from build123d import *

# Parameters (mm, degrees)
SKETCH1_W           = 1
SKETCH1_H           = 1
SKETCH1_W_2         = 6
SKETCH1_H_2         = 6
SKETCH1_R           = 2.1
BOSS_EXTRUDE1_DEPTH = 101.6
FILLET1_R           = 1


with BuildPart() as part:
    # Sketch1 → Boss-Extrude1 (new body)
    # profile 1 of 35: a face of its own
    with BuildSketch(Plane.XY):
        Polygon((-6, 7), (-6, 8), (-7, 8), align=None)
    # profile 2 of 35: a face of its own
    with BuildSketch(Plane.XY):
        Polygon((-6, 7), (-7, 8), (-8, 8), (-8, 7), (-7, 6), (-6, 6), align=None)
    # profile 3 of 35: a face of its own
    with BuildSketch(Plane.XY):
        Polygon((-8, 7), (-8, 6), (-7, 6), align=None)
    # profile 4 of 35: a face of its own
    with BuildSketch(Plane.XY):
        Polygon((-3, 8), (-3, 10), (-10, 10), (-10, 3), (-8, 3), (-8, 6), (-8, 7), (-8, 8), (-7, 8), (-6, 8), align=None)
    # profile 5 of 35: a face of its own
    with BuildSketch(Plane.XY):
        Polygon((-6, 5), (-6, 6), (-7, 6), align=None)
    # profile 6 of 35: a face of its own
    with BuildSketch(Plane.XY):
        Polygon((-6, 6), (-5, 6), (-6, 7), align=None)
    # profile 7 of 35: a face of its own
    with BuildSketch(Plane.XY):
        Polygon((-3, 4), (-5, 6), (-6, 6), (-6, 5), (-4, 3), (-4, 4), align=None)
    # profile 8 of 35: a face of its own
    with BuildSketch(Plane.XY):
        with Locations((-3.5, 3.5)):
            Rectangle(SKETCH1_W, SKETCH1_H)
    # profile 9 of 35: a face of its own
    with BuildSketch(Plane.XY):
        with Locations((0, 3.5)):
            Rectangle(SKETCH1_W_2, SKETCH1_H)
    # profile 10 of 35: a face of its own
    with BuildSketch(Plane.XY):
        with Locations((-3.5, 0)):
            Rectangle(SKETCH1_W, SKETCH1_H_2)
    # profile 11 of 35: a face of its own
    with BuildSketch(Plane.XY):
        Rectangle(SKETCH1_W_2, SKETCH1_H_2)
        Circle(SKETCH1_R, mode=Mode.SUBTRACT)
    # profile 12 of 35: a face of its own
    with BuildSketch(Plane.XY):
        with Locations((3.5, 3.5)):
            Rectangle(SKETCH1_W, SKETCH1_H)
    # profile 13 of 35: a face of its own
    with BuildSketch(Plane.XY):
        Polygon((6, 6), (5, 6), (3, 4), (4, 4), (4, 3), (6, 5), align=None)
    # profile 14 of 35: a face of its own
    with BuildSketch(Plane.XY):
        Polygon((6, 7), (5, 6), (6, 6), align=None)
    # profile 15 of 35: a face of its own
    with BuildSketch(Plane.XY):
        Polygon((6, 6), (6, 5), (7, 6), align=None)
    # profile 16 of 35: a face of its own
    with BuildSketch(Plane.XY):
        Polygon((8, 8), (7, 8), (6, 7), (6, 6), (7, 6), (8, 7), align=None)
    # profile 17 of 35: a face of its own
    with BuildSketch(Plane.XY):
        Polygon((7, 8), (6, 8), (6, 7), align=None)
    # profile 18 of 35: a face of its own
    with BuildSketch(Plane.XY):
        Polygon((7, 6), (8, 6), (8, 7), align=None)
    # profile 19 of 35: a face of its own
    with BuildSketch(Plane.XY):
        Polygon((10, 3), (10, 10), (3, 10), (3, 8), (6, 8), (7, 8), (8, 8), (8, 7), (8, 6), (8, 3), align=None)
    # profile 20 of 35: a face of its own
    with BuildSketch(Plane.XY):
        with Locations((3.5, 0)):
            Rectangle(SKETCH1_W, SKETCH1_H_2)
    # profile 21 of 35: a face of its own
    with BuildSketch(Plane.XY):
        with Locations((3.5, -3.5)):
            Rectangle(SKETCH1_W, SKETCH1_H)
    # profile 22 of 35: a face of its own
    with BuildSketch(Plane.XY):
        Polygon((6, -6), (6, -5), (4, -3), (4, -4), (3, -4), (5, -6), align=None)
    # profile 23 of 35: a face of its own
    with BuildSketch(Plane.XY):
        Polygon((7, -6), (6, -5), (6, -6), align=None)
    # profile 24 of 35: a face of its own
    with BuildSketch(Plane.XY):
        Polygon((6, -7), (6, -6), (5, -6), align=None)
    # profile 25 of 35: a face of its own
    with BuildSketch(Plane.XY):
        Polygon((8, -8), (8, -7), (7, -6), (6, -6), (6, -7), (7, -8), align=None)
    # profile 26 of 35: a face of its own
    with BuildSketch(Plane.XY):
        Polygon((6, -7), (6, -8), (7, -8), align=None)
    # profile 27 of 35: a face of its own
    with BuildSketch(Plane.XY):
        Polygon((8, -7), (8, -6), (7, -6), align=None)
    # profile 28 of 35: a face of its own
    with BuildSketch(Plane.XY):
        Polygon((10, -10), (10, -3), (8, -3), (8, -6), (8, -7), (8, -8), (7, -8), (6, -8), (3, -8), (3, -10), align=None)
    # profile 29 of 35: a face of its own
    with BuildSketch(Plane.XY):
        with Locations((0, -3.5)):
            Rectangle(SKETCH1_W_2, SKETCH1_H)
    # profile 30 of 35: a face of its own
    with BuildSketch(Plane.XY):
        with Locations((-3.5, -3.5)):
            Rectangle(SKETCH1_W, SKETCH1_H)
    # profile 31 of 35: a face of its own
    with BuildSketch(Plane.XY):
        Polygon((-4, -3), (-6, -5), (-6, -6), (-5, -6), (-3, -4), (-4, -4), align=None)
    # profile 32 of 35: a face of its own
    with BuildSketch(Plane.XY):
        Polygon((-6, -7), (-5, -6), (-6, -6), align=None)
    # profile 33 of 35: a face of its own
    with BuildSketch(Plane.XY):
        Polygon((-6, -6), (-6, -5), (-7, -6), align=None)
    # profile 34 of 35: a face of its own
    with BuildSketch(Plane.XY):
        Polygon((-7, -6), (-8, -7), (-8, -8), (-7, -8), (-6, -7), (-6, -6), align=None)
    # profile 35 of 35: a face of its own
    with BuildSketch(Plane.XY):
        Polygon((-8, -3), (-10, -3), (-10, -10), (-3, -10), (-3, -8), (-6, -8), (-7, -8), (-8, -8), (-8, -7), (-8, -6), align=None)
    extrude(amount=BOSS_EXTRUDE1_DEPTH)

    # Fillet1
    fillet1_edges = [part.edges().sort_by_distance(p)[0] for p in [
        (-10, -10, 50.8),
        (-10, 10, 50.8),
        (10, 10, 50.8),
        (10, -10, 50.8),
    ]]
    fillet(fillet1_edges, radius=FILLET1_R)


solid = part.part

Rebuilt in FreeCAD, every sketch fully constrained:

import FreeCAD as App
import Part
import Sketcher
Q = App.Units.Quantity


def edges_at(feature, points):
    """Names of the edges that pass closest to the given points."""
    edges = feature.Shape.Edges
    near = lambda p: min(range(len(edges)), key=lambda i: edges[i].distToShape(Part.Vertex(*p))[0])
    return sorted({f"Edge{near(p) + 1}" for p in points})


def add_polygon(sketch, points):
    """Adds a closed chain of lines whose ends are joined by coincident constraints."""
    first, n = sketch.GeometryCount, len(points)
    for a, b in zip(points, points[1:] + points[:1]):
        sketch.addGeometry(Part.LineSegment(App.Vector(*a, 0), App.Vector(*b, 0)), False)
    for i in range(n):
        sketch.addConstraint(Sketcher.Constraint("Coincident", first + i, 2, first + (i + 1) % n, 1))

doc = App.newDocument("Part")
body = doc.addObject("PartDesign::Body", "Body")

sketch1 = doc.addObject("Sketcher::SketchObject", "Sketch")
body.addObject(sketch1)
sketch1.AttachmentSupport = (doc.XY_Plane, [""])
sketch1.MapMode = "FlatFace"
add_polygon(sketch1, [(-6, 7), (-6, 8), (-3, 8), (-3, 10), (-10, 10), (-10, 3), (-8, 3), (-8, 6), (-7, 6), (-4, 3), (-4, -3), (-8, -7), (-8, -3), (-10, -3), (-10, -10), (-3, -10), (-3, -8), (-7, -8), (-3, -4), (3, -4), (6, -7), (6, -8), (3, -8), (3, -10), (10, -10), (10, -3), (8, -3), (8, -6), (7, -6), (4, -3), (4, 3), (7, 6), (8, 6), (8, 3), (10, 3), (10, 10), (3, 10), (3, 8), (6, 8), (6, 7), (3, 4), (-3, 4)])
sketch1.addGeometry(Part.Circle(App.Vector(0, 0, 0), App.Vector(0, 0, 1), 2.1), False)
sketch1.addConstraint([
    Sketcher.Constraint("Vertical", 0),
    Sketcher.Constraint("Horizontal", 1),
    Sketcher.Constraint("Vertical", 2),
    Sketcher.Constraint("Horizontal", 3),
    Sketcher.Constraint("Vertical", 4),
    Sketcher.Constraint("Horizontal", 5),
    Sketcher.Constraint("Vertical", 6),
    Sketcher.Constraint("Horizontal", 7),
    Sketcher.Constraint("Vertical", 9),
    Sketcher.Constraint("Vertical", 11),
    Sketcher.Constraint("Horizontal", 12),
    Sketcher.Constraint("Vertical", 13),
    Sketcher.Constraint("Horizontal", 14),
    Sketcher.Constraint("Vertical", 15),
    Sketcher.Constraint("Horizontal", 16),
    Sketcher.Constraint("Horizontal", 18),
    Sketcher.Constraint("Vertical", 20),
    Sketcher.Constraint("Horizontal", 21),
    Sketcher.Constraint("Vertical", 22),
    Sketcher.Constraint("Horizontal", 23),
    Sketcher.Constraint("Vertical", 24),
    Sketcher.Constraint("Horizontal", 25),
    Sketcher.Constraint("Vertical", 26),
    Sketcher.Constraint("Horizontal", 27),
    Sketcher.Constraint("Vertical", 29),
    Sketcher.Constraint("Horizontal", 31),
    Sketcher.Constraint("Vertical", 32),
    Sketcher.Constraint("Horizontal", 33),
    Sketcher.Constraint("Vertical", 34),
    Sketcher.Constraint("Horizontal", 35),
    Sketcher.Constraint("Vertical", 36),
    Sketcher.Constraint("Horizontal", 37),
    Sketcher.Constraint("Vertical", 38),
    Sketcher.Constraint("Horizontal", 40),
    Sketcher.Constraint("Coincident", 42, 3, -1, 1),
    Sketcher.Constraint("Symmetric", 0, 2, 20, 2, -1, 1),
    Sketcher.Constraint("Symmetric", 2, 2, 22, 2, -1, 1),
    Sketcher.Constraint("Symmetric", 4, 2, 24, 2, -1, 1),
    Sketcher.Constraint("Symmetric", 6, 2, 26, 2, -1, 1),
    Sketcher.Constraint("Symmetric", 8, 2, 28, 2, -1, 1),
    Sketcher.Constraint("Symmetric", 11, 2, 32, 2, -1, 1),
    Sketcher.Constraint("Symmetric", 13, 2, 34, 2, -1, 1),
    Sketcher.Constraint("Symmetric", 15, 2, 36, 2, -1, 1),
    Sketcher.Constraint("Symmetric", 17, 2, 39, 2, -1, 1),
    Sketcher.Constraint("Symmetric", 15, 2, 21, 2, -2),
    Sketcher.Constraint("Symmetric", 13, 2, 23, 2, -2),
    Sketcher.Constraint("Symmetric", 11, 2, 25, 2, -2),
    Sketcher.Constraint("Symmetric", 7, 2, 30, 2, -2),
    Sketcher.Constraint("Symmetric", 38, 2, 41, 2, -2),
    Sketcher.Constraint("Perpendicular", 8, 10),
    Sketcher.Constraint("Parallel", 10, 17),
    Sketcher.Constraint("Perpendicular", 17, 19),
    Sketcher.Constraint("Parallel", 19, 28),
    Sketcher.Constraint("Perpendicular", 28, 30),
    Sketcher.Constraint("Parallel", 30, 39),
    Sketcher.Constraint("Perpendicular", 39, 41),
    Sketcher.Constraint("Horizontal", 5, 2, 8, 2),
    Sketcher.Constraint("Horizontal", 9, 2, 11, 2),
    Sketcher.Constraint("Horizontal", 10, 2, 19, 2),
    Sketcher.Constraint("Horizontal", 8, 2, 29, 2),
    Sketcher.Constraint("Vertical", 7, 2, 16, 2),
    Sketcher.Constraint("Vertical", 15, 2, 17, 2),
    Sketcher.Constraint("Vertical", 18, 2, 21, 2),
    Sketcher.Constraint("Equal", 31, 0),
    Sketcher.Constraint("Equal", 33, 2),
    Sketcher.Constraint("Equal", 35, 4),
    Sketcher.Constraint("Equal", 40, 9),
    Sketcher.Constraint("Diameter", 42, Q("4.2 mm")),
    Sketcher.Constraint("DistanceX", 1, 1, 1, 2, Q("3 mm")),
    Sketcher.Constraint("DistanceX", 3, 2, 3, 1, Q("7 mm")),
    Sketcher.Constraint("DistanceX", 5, 1, 5, 2, Q("2 mm")),
    Sketcher.Constraint("DistanceX", 18, 1, 18, 2, Q("6 mm")),
])
pad1 = doc.addObject("PartDesign::Pad", "Pad")
body.addObject(pad1)
pad1.Profile = sketch1
pad1.Length = 101.6
doc.recompute()

fillet = doc.addObject("PartDesign::Fillet", "Fillet")
body.addObject(fillet)
fillet.Base = (pad1, edges_at(pad1, [
    (-10, -10, 50.8),
    (-10, 10, 50.8),
    (10, 10, 50.8),
    (10, -10, 50.8),
]))
fillet.Radius = 1

doc.recompute()
